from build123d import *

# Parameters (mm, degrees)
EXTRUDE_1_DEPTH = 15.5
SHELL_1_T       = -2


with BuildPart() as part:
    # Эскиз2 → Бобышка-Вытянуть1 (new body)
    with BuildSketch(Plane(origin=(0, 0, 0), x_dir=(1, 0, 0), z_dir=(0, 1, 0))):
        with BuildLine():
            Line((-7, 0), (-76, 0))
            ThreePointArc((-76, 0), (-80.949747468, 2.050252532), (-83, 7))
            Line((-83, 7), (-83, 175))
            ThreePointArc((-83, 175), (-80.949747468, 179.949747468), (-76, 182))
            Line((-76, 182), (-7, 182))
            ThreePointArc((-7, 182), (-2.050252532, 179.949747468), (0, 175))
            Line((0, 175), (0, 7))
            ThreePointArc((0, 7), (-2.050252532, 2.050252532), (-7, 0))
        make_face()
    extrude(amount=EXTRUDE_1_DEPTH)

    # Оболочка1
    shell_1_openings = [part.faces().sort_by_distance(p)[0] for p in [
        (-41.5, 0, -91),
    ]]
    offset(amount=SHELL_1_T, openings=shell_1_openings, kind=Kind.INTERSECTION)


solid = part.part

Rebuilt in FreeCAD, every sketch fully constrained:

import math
import FreeCAD as App
import Part
import Sketcher
from FreeCAD import Vector


def faces_at(feature, points):
    """Names of the faces that lie closest to the given points."""
    faces = feature.Shape.Faces
    near = lambda p: min(range(len(faces)), key=lambda i: faces[i].distToShape(Part.Vertex(*p))[0])
    return sorted({f"Face{near(p) + 1}" for p in points})

doc = App.newDocument("Part")
params = doc.addObject("Spreadsheet::Sheet", "Params")
for row, (alias, value) in enumerate([
    ("sketch1_radius", "7 mm"),
    ("sketch1_width", "69 mm"),
    ("sketch1_height", "168 mm"),
    ("pad1_length", "15.5 mm"),
    ("thickness_wall", "2 mm"),
], start=1):
    params.set(f"A{row}", alias)
    params.set(f"B{row}", "=" + value)
    params.setAlias(f"B{row}", alias)

body = doc.addObject("PartDesign::Body", "Body")

# Sketch on XZ plane
sketch1 = doc.addObject("Sketcher::SketchObject", "Sketch")
body.addObject(sketch1)
sketch1.AttachmentSupport = (doc.XZ_Plane, [""])
sketch1.MapMode = "FlatFace"
sketch1.addGeometry(Part.LineSegment(Vector(-76, 0, 0), Vector(-7, 0, 0)), False)
sketch1.addGeometry(Part.ArcOfCircle(Part.Circle(Vector(-7, -7, 0), Vector(0, 0, 1), 7), math.radians(0), math.radians(90)), False)
sketch1.addGeometry(Part.LineSegment(Vector(0, -7, 0), Vector(0, -175, 0)), False)
sketch1.addGeometry(Part.ArcOfCircle(Part.Circle(Vector(-7, -175, 0), Vector(0, 0, 1), 7), math.radians(-90), math.radians(0)), False)
sketch1.addGeometry(Part.LineSegment(Vector(-7, -182, 0), Vector(-76, -182, 0)), False)
sketch1.addGeometry(Part.ArcOfCircle(Part.Circle(Vector(-76, -175, 0), Vector(0, 0, 1), 7), math.radians(-180), math.radians(-90)), False)
sketch1.addGeometry(Part.LineSegment(Vector(-83, -175, 0), Vector(-83, -7, 0)), False)
sketch1.addGeometry(Part.ArcOfCircle(Part.Circle(Vector(-76, -7, 0), Vector(0, 0, 1), 7), math.radians(90), math.radians(180)), False)
sketch1.addConstraint(Sketcher.Constraint("Tangent", 0, 2, 1, 2))
sketch1.addConstraint(Sketcher.Constraint("Tangent", 1, 1, 2, 1))
sketch1.addConstraint(Sketcher.Constraint("Tangent", 2, 2, 3, 2))
sketch1.addConstraint(Sketcher.Constraint("Tangent", 3, 1, 4, 1))
sketch1.addConstraint(Sketcher.Constraint("Tangent", 4, 2, 5, 2))
sketch1.addConstraint(Sketcher.Constraint("Tangent", 5, 1, 6, 1))
sketch1.addConstraint(Sketcher.Constraint("Tangent", 6, 2, 7, 2))
sketch1.addConstraint(Sketcher.Constraint("Tangent", 7, 1, 0, 1))
sketch1.addConstraint(Sketcher.Constraint("Horizontal", 0))
sketch1.addConstraint(Sketcher.Constraint("Vertical", 2))
sketch1.addConstraint(Sketcher.Constraint("Horizontal", 4))
sketch1.addConstraint(Sketcher.Constraint("Vertical", 6))
sketch1.addConstraint(Sketcher.Constraint("Equal", 1, 3))
sketch1.addConstraint(Sketcher.Constraint("Equal", 3, 5))
sketch1.addConstraint(Sketcher.Constraint("Equal", 5, 7))
sketch1.addConstraint(Sketcher.Constraint("PointOnObject", 0, 2, -1))
sketch1.addConstraint(Sketcher.Constraint("PointOnObject", 1, 1, -2))
sketch1.addConstraint(Sketcher.Constraint("Radius", 1, 7.0))
sketch1.addConstraint(Sketcher.Constraint("DistanceX", 0, 1, 0, 2, 69.0))
sketch1.addConstraint(Sketcher.Constraint("DistanceY", 2, 2, 2, 1, 168.0))
sketch1.setExpression("Constraints[17]", "Params.sketch1_radius")
sketch1.setExpression("Constraints[18]", "Params.sketch1_width")
sketch1.setExpression("Constraints[19]", "Params.sketch1_height")
pad1 = doc.addObject("PartDesign::Pad", "Pad")
body.addObject(pad1)
pad1.Profile = sketch1
pad1.setExpression("Length", "Params.pad1_length")
pad1.Reversed = True
doc.recompute()

thickness = doc.addObject("PartDesign::Thickness", "Thickness")
body.addObject(thickness)
thickness.Base = (pad1, faces_at(pad1, [(-41.5, 0, -91)]))
thickness.setExpression("Value", "Params.thickness_wall")
thickness.Reversed = True
thickness.Join = "Intersection"

doc.recompute()
